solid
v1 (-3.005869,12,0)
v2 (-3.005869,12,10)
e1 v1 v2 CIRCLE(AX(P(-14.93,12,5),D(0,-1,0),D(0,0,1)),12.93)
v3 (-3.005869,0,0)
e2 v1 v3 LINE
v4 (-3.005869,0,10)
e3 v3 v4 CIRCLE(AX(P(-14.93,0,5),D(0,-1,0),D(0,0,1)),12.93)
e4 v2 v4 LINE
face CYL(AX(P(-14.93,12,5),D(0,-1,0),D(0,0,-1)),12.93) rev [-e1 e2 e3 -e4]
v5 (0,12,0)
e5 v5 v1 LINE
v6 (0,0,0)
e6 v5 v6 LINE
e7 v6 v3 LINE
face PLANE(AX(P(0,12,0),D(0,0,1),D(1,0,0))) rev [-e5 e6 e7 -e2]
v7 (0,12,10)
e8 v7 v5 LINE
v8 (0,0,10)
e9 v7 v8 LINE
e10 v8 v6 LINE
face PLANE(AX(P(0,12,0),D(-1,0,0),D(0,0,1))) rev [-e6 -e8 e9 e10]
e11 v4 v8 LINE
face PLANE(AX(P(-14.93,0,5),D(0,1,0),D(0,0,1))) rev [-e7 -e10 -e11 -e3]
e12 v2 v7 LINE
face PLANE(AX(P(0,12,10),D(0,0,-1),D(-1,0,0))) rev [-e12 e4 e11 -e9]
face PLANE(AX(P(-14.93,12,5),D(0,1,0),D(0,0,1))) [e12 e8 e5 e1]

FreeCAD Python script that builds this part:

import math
import FreeCAD as App
import Part
import Sketcher
Q = App.Units.Quantity

doc = App.newDocument("Part")
body = doc.addObject("PartDesign::Body", "Body")

sketch1 = doc.addObject("Sketcher::SketchObject", "Sketch")
body.addObject(sketch1)
sketch1.AttachmentSupport = (doc.XZ_Plane, [""])
sketch1.MapMode = "FlatFace"
sketch1.addGeometry([
    Part.LineSegment(App.Vector(0, 10, 0), App.Vector(0, 0, 0)),
    Part.LineSegment(App.Vector(0, 0, 0), App.Vector(-3, 0, 0)),
    Part.ArcOfCircle(Part.Circle(App.Vector(-14.9, 5, 0), App.Vector(0, 0, 1), 12.9), math.radians(-23), math.radians(23)),
    Part.LineSegment(App.Vector(-3, 10, 0), App.Vector(0, 10, 0)),
], False)
sketch1.addConstraint([
    Sketcher.Constraint("Coincident", 0, 2, 1, 1),
    Sketcher.Constraint("Coincident", 1, 2, 2, 1),
    Sketcher.Constraint("Coincident", 2, 2, 3, 1),
    Sketcher.Constraint("Coincident", 3, 2, 0, 1),
    Sketcher.Constraint("Vertical", 0),
    Sketcher.Constraint("Horizontal", 1),
    Sketcher.Constraint("Horizontal", 3),
    Sketcher.Constraint("Coincident", 0, 2, -1, 1),
    Sketcher.Constraint("Vertical", 1, 2, 2, 2),
    Sketcher.Constraint("DistanceY", 0, 2, 0, 1, Q("10 mm")),
    Sketcher.Constraint("Radius", 2, Q("12.93 mm")),
    Sketcher.Constraint("DistanceX", 2, 3, -1, 1, Q("14.93 mm")),
])
pad1 = doc.addObject("PartDesign::Pad", "Pad")
body.addObject(pad1)
pad1.Profile = sketch1
pad1.Length = 12
pad1.Reversed = True

doc.recompute()
